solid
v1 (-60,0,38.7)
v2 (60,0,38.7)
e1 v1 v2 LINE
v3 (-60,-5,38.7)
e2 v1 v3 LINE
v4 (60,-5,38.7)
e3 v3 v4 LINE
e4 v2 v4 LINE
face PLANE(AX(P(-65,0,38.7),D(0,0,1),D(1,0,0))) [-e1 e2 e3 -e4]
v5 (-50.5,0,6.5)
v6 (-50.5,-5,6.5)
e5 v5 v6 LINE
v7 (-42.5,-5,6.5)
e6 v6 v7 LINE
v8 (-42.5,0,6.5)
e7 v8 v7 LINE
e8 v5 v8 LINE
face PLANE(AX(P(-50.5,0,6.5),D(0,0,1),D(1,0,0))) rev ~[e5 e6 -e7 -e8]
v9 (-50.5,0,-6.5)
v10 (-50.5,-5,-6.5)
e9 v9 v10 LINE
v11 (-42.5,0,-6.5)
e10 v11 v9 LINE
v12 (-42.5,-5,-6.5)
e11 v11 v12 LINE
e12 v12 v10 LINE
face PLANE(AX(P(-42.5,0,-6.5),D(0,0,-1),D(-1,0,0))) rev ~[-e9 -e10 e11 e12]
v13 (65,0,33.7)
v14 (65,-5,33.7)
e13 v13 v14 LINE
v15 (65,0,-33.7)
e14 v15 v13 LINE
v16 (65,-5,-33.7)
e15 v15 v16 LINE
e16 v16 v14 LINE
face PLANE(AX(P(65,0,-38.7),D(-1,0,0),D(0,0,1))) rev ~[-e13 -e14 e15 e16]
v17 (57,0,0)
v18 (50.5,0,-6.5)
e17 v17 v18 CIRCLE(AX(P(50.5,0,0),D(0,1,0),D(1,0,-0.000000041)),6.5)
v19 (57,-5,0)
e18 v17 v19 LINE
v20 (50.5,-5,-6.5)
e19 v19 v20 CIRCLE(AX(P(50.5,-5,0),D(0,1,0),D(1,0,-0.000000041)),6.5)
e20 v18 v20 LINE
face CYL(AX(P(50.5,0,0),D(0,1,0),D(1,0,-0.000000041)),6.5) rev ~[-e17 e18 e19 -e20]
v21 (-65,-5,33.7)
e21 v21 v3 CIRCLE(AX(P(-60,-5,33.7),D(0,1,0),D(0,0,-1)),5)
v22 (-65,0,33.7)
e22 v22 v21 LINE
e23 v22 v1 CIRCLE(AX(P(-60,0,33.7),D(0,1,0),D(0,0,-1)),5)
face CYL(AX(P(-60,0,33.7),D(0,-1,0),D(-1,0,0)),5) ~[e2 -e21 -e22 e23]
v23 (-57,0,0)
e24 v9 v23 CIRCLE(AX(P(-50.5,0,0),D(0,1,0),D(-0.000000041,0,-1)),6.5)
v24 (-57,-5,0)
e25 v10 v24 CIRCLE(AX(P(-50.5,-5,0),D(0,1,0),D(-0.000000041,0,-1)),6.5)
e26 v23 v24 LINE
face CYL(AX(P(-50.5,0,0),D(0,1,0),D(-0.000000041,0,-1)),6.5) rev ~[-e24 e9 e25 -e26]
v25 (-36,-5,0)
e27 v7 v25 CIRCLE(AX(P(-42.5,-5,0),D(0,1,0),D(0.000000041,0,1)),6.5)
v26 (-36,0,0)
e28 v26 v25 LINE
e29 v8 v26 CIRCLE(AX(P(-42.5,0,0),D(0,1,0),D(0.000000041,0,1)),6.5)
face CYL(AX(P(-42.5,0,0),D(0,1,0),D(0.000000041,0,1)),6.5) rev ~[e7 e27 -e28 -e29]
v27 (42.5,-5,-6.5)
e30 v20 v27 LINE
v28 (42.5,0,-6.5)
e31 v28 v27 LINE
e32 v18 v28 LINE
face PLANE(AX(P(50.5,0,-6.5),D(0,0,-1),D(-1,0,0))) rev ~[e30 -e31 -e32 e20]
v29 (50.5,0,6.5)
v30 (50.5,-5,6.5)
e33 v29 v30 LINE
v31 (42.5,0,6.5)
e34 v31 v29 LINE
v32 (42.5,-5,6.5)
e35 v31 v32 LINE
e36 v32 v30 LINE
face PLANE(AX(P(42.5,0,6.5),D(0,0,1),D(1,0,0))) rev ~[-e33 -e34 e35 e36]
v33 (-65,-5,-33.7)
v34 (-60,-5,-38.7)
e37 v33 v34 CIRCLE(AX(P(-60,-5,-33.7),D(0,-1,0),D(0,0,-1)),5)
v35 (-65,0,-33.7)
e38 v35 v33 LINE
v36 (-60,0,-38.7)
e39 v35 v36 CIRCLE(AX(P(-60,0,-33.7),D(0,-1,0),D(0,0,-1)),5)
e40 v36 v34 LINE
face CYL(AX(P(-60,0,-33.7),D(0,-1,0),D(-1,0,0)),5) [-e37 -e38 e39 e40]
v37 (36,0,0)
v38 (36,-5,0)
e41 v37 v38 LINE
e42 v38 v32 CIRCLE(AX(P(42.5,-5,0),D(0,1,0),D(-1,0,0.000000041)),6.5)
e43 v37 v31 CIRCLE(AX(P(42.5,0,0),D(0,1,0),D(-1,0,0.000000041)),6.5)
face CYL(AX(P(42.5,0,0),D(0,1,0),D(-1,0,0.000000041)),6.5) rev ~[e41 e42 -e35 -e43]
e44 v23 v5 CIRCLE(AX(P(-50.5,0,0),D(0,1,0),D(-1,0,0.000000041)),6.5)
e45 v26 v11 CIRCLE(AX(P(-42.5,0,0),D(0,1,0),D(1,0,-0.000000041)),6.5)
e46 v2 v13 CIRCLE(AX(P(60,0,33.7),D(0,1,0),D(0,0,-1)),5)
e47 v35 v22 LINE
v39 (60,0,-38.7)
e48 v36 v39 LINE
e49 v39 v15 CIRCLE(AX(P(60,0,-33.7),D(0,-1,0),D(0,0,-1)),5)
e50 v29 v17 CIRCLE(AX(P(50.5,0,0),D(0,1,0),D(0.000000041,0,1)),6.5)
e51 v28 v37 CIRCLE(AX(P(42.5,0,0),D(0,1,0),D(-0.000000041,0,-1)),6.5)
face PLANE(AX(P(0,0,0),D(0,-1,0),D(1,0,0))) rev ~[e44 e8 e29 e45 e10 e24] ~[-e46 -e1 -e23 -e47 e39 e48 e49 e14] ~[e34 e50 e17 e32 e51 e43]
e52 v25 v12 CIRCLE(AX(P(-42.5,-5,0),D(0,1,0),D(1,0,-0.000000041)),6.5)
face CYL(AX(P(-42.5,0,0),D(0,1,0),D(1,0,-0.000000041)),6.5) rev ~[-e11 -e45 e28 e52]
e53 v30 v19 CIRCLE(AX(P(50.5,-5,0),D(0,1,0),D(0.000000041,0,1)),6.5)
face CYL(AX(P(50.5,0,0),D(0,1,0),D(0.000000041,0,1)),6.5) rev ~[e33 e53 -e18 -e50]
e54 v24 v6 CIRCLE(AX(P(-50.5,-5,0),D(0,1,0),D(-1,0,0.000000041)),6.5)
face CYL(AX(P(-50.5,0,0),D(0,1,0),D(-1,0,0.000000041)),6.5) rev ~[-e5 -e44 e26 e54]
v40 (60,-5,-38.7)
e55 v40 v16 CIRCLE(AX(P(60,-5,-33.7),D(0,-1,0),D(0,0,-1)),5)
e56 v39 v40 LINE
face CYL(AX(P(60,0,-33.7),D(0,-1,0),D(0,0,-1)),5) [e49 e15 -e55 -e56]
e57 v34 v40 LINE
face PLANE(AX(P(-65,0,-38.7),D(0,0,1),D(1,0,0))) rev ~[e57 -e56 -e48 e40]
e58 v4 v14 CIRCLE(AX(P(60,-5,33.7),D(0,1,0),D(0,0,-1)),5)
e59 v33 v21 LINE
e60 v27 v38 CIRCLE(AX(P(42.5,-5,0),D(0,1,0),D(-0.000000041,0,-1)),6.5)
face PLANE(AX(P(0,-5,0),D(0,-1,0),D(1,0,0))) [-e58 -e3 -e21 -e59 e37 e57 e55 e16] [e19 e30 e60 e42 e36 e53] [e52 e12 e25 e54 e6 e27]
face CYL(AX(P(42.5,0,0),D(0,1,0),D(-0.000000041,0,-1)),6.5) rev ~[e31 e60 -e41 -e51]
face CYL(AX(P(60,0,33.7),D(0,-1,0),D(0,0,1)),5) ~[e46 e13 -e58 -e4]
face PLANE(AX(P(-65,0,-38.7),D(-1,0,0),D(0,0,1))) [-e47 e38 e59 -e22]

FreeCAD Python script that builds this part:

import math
import FreeCAD as App
import Part
import Sketcher
Q = App.Units.Quantity


def edges_at(feature, points):
    """Names of the edges that pass closest to the given points."""
    edges = feature.Shape.Edges
    near = lambda p: min(range(len(edges)), key=lambda i: edges[i].distToShape(Part.Vertex(*p))[0])
    return sorted({f"Edge{near(p) + 1}" for p in points})

doc = App.newDocument("Part")
body = doc.addObject("PartDesign::Body", "Body")

# Sketch on XZ plane
sketch1 = body.newObject("Sketcher::SketchObject", "Sketch")
sketch1.AttachmentSupport = (doc.getObject("XZ_Plane"), [""])
sketch1.MapMode = "FlatFace"
sketch1.addGeometry([
    Part.LineSegment(App.Vector(-65, 39, 0), App.Vector(-65, -39, 0)),  # 0
    Part.LineSegment(App.Vector(-65, -39, 0), App.Vector(65, -39, 0)),  # 1
    Part.LineSegment(App.Vector(65, -39, 0), App.Vector(65, 39, 0)),  # 2
    Part.LineSegment(App.Vector(65, 39, 0), App.Vector(-65, 39, 0)),  # 3
    Part.ArcOfCircle(Part.Circle(App.Vector(-43, 0, 0), App.Vector(0, 0, 1), 7), math.radians(0), math.radians(90)),  # 4
    Part.ArcOfCircle(Part.Circle(App.Vector(-43, 0, 0), App.Vector(0, 0, 1), 7), math.radians(-90), math.radians(0)),  # 5
    Part.LineSegment(App.Vector(-42, -6, 0), App.Vector(-50, -6, 0)),  # 6
    Part.ArcOfCircle(Part.Circle(App.Vector(-50, 0, 0), App.Vector(0, 0, 1), 7), math.radians(-180), math.radians(-90)),  # 7
    Part.ArcOfCircle(Part.Circle(App.Vector(-50, 0, 0), App.Vector(0, 0, 1), 7), math.radians(90), math.radians(180)),  # 8
    Part.LineSegment(App.Vector(-50, 6, 0), App.Vector(-42, 6, 0)),  # 9
    Part.LineSegment(App.Vector(42, 6, 0), App.Vector(50, 6, 0)),  # 10
    Part.ArcOfCircle(Part.Circle(App.Vector(50, 0, 0), App.Vector(0, 0, 1), 7), math.radians(0), math.radians(90)),  # 11
    Part.ArcOfCircle(Part.Circle(App.Vector(50, 0, 0), App.Vector(0, 0, 1), 7), math.radians(-90), math.radians(0)),  # 12
    Part.LineSegment(App.Vector(50, -6, 0), App.Vector(42, -6, 0)),  # 13
    Part.ArcOfCircle(Part.Circle(App.Vector(43, 0, 0), App.Vector(0, 0, 1), 7), math.radians(-180), math.radians(-90)),  # 14
    Part.ArcOfCircle(Part.Circle(App.Vector(43, 0, 0), App.Vector(0, 0, 1), 7), math.radians(90), math.radians(180)),  # 15
], False)
sketch1.addConstraint([
    Sketcher.Constraint("Coincident", 0, 2, 1, 1),
    Sketcher.Constraint("Coincident", 1, 2, 2, 1),
    Sketcher.Constraint("Coincident", 2, 2, 3, 1),
    Sketcher.Constraint("Coincident", 3, 2, 0, 1),
    Sketcher.Constraint("Tangent", 4, 1, 5, 2),
    Sketcher.Constraint("Tangent", 5, 1, 6, 1),
    Sketcher.Constraint("Tangent", 6, 2, 7, 2),
    Sketcher.Constraint("Tangent", 7, 1, 8, 2),
    Sketcher.Constraint("Tangent", 8, 1, 9, 1),
    Sketcher.Constraint("Tangent", 9, 2, 4, 2),
    Sketcher.Constraint("Tangent", 10, 2, 11, 2),
    Sketcher.Constraint("Tangent", 11, 1, 12, 2),
    Sketcher.Constraint("Tangent", 12, 1, 13, 1),
    Sketcher.Constraint("Tangent", 13, 2, 14, 2),
    Sketcher.Constraint("Tangent", 14, 1, 15, 2),
    Sketcher.Constraint("Tangent", 15, 1, 10, 1),
    Sketcher.Constraint("Vertical", 0),
    Sketcher.Constraint("Horizontal", 1),
    Sketcher.Constraint("Vertical", 2),
    Sketcher.Constraint("Horizontal", 3),
    Sketcher.Constraint("Horizontal", 6),
    Sketcher.Constraint("Horizontal", 9),
    Sketcher.Constraint("Horizontal", 10),
    Sketcher.Constraint("Horizontal", 13),
    Sketcher.Constraint("Equal", 4, 5),
    Sketcher.Constraint("Equal", 5, 7),
    Sketcher.Constraint("Equal", 8, 11),
    Sketcher.Constraint("Equal", 11, 12),
    Sketcher.Constraint("Equal", 12, 14),
    Sketcher.Constraint("Symmetric", 7, 3, 11, 3, -1, 1),
    Sketcher.Constraint("Symmetric", 0, 2, 2, 2, -1, 1),
    Sketcher.Constraint("Symmetric", 4, 1, 14, 1, -1, 1),
    Sketcher.Constraint("PointOnObject", 4, 3, -1),
    Sketcher.Constraint("PointOnObject", 4, 1, -1),
    Sketcher.Constraint("PointOnObject", 7, 1, -1),
    Sketcher.Constraint("PointOnObject", 11, 1, -1),
    Sketcher.Constraint("Radius", 4, Q("6.5 mm")),
    Sketcher.Constraint("DistanceX", 1, 1, 1, 2, Q("130 mm")),
    Sketcher.Constraint("DistanceX", 6, 2, 6, 1, Q("8 mm")),
    Sketcher.Constraint("DistanceY", 0, 2, 0, 1, Q("77.4 mm")),
    Sketcher.Constraint("DistanceX", 4, 1, -1, 1, Q("36 mm")),
])
pad1 = body.newObject("PartDesign::Pad", "Pad")
pad1.Profile = sketch1
pad1.Length = 5
doc.recompute()

fillet = body.newObject("PartDesign::Fillet", "Fillet")
fillet.Base = (pad1, edges_at(pad1, [
    (65, -2.5, 38.7),
    (65, -2.5, -38.7),
    (-65, -2.5, -38.7),
    (-65, -2.5, 38.7),
]))
fillet.Radius = 5

doc.recompute()
